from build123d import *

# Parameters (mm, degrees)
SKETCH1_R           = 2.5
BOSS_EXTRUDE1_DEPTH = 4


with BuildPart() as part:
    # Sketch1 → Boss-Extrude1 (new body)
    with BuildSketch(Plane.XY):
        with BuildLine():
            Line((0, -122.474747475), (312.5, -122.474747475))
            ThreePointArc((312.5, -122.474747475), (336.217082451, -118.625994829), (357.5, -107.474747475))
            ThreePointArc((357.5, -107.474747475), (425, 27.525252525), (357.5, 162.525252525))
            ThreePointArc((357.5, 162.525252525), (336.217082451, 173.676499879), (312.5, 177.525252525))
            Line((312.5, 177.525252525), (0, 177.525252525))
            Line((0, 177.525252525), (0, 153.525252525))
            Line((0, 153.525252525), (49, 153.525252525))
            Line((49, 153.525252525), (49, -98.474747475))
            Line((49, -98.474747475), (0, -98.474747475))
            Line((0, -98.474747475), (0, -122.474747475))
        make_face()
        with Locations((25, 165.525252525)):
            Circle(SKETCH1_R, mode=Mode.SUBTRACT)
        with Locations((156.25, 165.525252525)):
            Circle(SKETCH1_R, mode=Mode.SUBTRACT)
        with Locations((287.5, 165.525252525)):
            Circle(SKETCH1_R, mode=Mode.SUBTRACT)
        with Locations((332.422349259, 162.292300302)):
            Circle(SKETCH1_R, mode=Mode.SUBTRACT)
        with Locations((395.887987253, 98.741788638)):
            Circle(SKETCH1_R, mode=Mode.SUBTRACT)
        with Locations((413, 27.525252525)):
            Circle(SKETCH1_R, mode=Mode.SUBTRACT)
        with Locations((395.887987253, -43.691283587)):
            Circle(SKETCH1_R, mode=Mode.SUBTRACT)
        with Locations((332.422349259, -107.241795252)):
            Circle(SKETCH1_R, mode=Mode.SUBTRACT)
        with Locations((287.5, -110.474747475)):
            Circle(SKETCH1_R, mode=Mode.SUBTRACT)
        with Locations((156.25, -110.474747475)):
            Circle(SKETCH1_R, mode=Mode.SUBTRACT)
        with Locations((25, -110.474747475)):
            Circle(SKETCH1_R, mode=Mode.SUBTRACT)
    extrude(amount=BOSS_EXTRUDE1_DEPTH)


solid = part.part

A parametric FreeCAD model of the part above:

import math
import FreeCAD as App
import Part
import Sketcher

V = App.Vector

doc = App.newDocument("Part")
params = doc.addObject("Spreadsheet::Sheet", "Params")
for row, (alias, value) in enumerate([
    ("sketch1_diameter", "5 mm"),
    ("sketch1_radius", "75 mm"),
    ("sketch1_width", "49 mm"),
    ("sketch1_height", "24 mm"),
    ("sketch1_height2", "252 mm"),
    ("pad1_length", "4 mm"),
], start=1):
    params.set(f"A{row}", alias)
    params.set(f"B{row}", "=" + value)
    params.setAlias(f"B{row}", alias)

body = doc.addObject("PartDesign::Body", "Body")

# Sketch on XY plane
sketch1 = doc.addObject("Sketcher::SketchObject", "Sketch")
body.addObject(sketch1)
sketch1.AttachmentSupport = (doc.XY_Plane, [""])
sketch1.MapMode = "FlatFace"
sketch1.addGeometry(Part.LineSegment(V(0, -122.5, 0), V(312.5, -122.5, 0)), False)
sketch1.addGeometry(Part.ArcOfCircle(Part.Circle(V(312.5, -47.5, 0), V(0, 0, 1), 75), math.radians(-90), math.radians(-53)), False)
sketch1.addGeometry(Part.ArcOfCircle(Part.Circle(V(256.2, 27.5, 0), V(0, 0, 1), 168.8), math.radians(-53), math.radians(53)), False)
sketch1.addGeometry(Part.ArcOfCircle(Part.Circle(V(312.5, 102.5, 0), V(0, 0, 1), 75), math.radians(53), math.radians(90)), False)
sketch1.addGeometry(Part.LineSegment(V(312.5, 177.5, 0), V(0, 177.5, 0)), False)
sketch1.addGeometry(Part.LineSegment(V(0, 177.5, 0), V(0, 153.5, 0)), False)
sketch1.addGeometry(Part.LineSegment(V(0, 153.5, 0), V(49, 153.5, 0)), False)
sketch1.addGeometry(Part.LineSegment(V(49, 153.5, 0), V(49, -98.5, 0)), False)
sketch1.addGeometry(Part.LineSegment(V(49, -98.5, 0), V(0, -98.5, 0)), False)
sketch1.addGeometry(Part.LineSegment(V(0, -98.5, 0), V(0, -122.5, 0)), False)
sketch1.addGeometry(Part.Circle(V(25, -110.5, 0), V(0, 0, 1), 2.5), False)
sketch1.addGeometry(Part.Circle(V(156.2, -110.5, 0), V(0, 0, 1), 2.5), False)
sketch1.addGeometry(Part.Circle(V(287.5, -110.5, 0), V(0, 0, 1), 2.5), False)
sketch1.addGeometry(Part.Circle(V(332.4, -107.2, 0), V(0, 0, 1), 2.5), False)
sketch1.addGeometry(Part.Circle(V(395.9, -43.7, 0), V(0, 0, 1), 2.5), False)
sketch1.addGeometry(Part.Circle(V(25, 165.5, 0), V(0, 0, 1), 2.5), False)
sketch1.addGeometry(Part.Circle(V(156.2, 165.5, 0), V(0, 0, 1), 2.5), False)
sketch1.addGeometry(Part.Circle(V(413, 27.5, 0), V(0, 0, 1), 2.5), False)
sketch1.addGeometry(Part.Circle(V(287.5, 165.5, 0), V(0, 0, 1), 2.5), False)
sketch1.addGeometry(Part.Circle(V(395.9, 98.7, 0), V(0, 0, 1), 2.5), False)
sketch1.addGeometry(Part.Circle(V(332.4, 162.3, 0), V(0, 0, 1), 2.5), False)
sketch1.addConstraint(Sketcher.Constraint("Tangent", 0, 2, 1, 1))
sketch1.addConstraint(Sketcher.Constraint("Tangent", 1, 2, 2, 1))
sketch1.addConstraint(Sketcher.Constraint("Tangent", 2, 2, 3, 1))
sketch1.addConstraint(Sketcher.Constraint("Tangent", 3, 2, 4, 1))
sketch1.addConstraint(Sketcher.Constraint("Coincident", 4, 2, 5, 1))
sketch1.addConstraint(Sketcher.Constraint("Coincident", 5, 2, 6, 1))
sketch1.addConstraint(Sketcher.Constraint("Coincident", 6, 2, 7, 1))
sketch1.addConstraint(Sketcher.Constraint("Coincident", 7, 2, 8, 1))
sketch1.addConstraint(Sketcher.Constraint("Coincident", 8, 2, 9, 1))
sketch1.addConstraint(Sketcher.Constraint("Coincident", 9, 2, 0, 1))
sketch1.addConstraint(Sketcher.Constraint("Horizontal", 0))
sketch1.addConstraint(Sketcher.Constraint("Horizontal", 4))
sketch1.addConstraint(Sketcher.Constraint("Vertical", 5))
sketch1.addConstraint(Sketcher.Constraint("Horizontal", 6))
sketch1.addConstraint(Sketcher.Constraint("Vertical", 7))
sketch1.addConstraint(Sketcher.Constraint("Horizontal", 8))
sketch1.addConstraint(Sketcher.Constraint("Vertical", 9))
sketch1.addConstraint(Sketcher.Constraint("Equal", 1, 3))
sketch1.addConstraint(Sketcher.Constraint("Equal", 10, 11))
sketch1.addConstraint(Sketcher.Constraint("Equal", 11, 12))
sketch1.addConstraint(Sketcher.Constraint("Equal", 12, 13))
sketch1.addConstraint(Sketcher.Constraint("Equal", 13, 14))
sketch1.addConstraint(Sketcher.Constraint("Equal", 14, 15))
sketch1.addConstraint(Sketcher.Constraint("Equal", 15, 16))
sketch1.addConstraint(Sketcher.Constraint("Equal", 16, 17))
sketch1.addConstraint(Sketcher.Constraint("Equal", 17, 18))
sketch1.addConstraint(Sketcher.Constraint("Equal", 18, 19))
sketch1.addConstraint(Sketcher.Constraint("Equal", 19, 20))
sketch1.addConstraint(Sketcher.Constraint("PointOnObject", 4, 2, -2))
sketch1.addConstraint(Sketcher.Constraint("PointOnObject", 8, 2, -2))
sketch1.addConstraint(Sketcher.Constraint("Horizontal", 10, 3, 11, 3))
sketch1.addConstraint(Sketcher.Constraint("Horizontal", 11, 3, 12, 3))
sketch1.addConstraint(Sketcher.Constraint("Horizontal", 15, 3, 16, 3))
sketch1.addConstraint(Sketcher.Constraint("Horizontal", 2, 3, 17, 3))
sketch1.addConstraint(Sketcher.Constraint("Horizontal", 16, 3, 18, 3))
sketch1.addConstraint(Sketcher.Constraint("Vertical", 1, 3, 3, 3))
sketch1.addConstraint(Sketcher.Constraint("Vertical", 10, 3, 15, 3))
sketch1.addConstraint(Sketcher.Constraint("Vertical", 11, 3, 16, 3))
sketch1.addConstraint(Sketcher.Constraint("Vertical", 12, 3, 18, 3))
sketch1.addConstraint(Sketcher.Constraint("Vertical", 14, 3, 19, 3))
sketch1.addConstraint(Sketcher.Constraint("Vertical", 13, 3, 20, 3))
sketch1.addConstraint(Sketcher.Constraint("Equal", 5, 9))
sketch1.addConstraint(Sketcher.Constraint("Diameter", 10, 5.0))
sketch1.addConstraint(Sketcher.Constraint("Radius", 1, 75.0))
sketch1.addConstraint(Sketcher.Constraint("DistanceX", 6, 1, 6, 2, 49.0))
sketch1.addConstraint(Sketcher.Constraint("DistanceY", 5, 2, 5, 1, 24.0))
sketch1.addConstraint(Sketcher.Constraint("DistanceY", 7, 2, 7, 1, 252.0))
sketch1.addConstraint(Sketcher.Constraint("Radius", 2, 168.75))
sketch1.addConstraint(Sketcher.Constraint("DistanceX", 0, 1, 0, 2, 312.5))
sketch1.addConstraint(Sketcher.Constraint("DistanceX", -1, 1, 10, 3, 25.0))
sketch1.addConstraint(Sketcher.Constraint("DistanceX", -1, 1, 17, 3, 413.0))
sketch1.addConstraint(Sketcher.Constraint("DistanceY", 10, 3, 2, 3, 138.0))
sketch1.addConstraint(Sketcher.Constraint("DistanceX", 11, 3, 2, 3, 100.0))
sketch1.addConstraint(Sketcher.Constraint("DistanceX", 12, 3, 1, 3, 25.0))
sketch1.addConstraint(Sketcher.Constraint("DistanceY", 2, 3, 15, 3, 138.0))
sketch1.addConstraint(Sketcher.Constraint("DistanceY", -1, 1, 20, 3, 162.2923))
sketch1.addConstraint(Sketcher.Constraint("DistanceX", -1, 1, 13, 3, 332.422349))
sketch1.addConstraint(Sketcher.Constraint("DistanceY", -1, 1, 19, 3, 98.741789))
sketch1.addConstraint(Sketcher.Constraint("DistanceY", 13, 3, 14, 3, 63.550512))
sketch1.addConstraint(Sketcher.Constraint("DistanceY", 1, 3, -1, 1, 47.474747))
sketch1.addConstraint(Sketcher.Constraint("DistanceY", 13, 3, -1, 1, 107.241795))
sketch1.addConstraint(Sketcher.Constraint("DistanceX", -1, 1, 14, 3, 395.887987))
sketch1.setExpression("Constraints[42]", "Params.sketch1_diameter")
sketch1.setExpression("Constraints[43]", "Params.sketch1_radius")
sketch1.setExpression("Constraints[44]", "Params.sketch1_width")
sketch1.setExpression("Constraints[45]", "Params.sketch1_height")
sketch1.setExpression("Constraints[46]", "Params.sketch1_height2")
pad1 = doc.addObject("PartDesign::Pad", "Pad")
body.addObject(pad1)
pad1.Profile = sketch1
pad1.setExpression("Length", "Params.pad1_length")

doc.recompute()
